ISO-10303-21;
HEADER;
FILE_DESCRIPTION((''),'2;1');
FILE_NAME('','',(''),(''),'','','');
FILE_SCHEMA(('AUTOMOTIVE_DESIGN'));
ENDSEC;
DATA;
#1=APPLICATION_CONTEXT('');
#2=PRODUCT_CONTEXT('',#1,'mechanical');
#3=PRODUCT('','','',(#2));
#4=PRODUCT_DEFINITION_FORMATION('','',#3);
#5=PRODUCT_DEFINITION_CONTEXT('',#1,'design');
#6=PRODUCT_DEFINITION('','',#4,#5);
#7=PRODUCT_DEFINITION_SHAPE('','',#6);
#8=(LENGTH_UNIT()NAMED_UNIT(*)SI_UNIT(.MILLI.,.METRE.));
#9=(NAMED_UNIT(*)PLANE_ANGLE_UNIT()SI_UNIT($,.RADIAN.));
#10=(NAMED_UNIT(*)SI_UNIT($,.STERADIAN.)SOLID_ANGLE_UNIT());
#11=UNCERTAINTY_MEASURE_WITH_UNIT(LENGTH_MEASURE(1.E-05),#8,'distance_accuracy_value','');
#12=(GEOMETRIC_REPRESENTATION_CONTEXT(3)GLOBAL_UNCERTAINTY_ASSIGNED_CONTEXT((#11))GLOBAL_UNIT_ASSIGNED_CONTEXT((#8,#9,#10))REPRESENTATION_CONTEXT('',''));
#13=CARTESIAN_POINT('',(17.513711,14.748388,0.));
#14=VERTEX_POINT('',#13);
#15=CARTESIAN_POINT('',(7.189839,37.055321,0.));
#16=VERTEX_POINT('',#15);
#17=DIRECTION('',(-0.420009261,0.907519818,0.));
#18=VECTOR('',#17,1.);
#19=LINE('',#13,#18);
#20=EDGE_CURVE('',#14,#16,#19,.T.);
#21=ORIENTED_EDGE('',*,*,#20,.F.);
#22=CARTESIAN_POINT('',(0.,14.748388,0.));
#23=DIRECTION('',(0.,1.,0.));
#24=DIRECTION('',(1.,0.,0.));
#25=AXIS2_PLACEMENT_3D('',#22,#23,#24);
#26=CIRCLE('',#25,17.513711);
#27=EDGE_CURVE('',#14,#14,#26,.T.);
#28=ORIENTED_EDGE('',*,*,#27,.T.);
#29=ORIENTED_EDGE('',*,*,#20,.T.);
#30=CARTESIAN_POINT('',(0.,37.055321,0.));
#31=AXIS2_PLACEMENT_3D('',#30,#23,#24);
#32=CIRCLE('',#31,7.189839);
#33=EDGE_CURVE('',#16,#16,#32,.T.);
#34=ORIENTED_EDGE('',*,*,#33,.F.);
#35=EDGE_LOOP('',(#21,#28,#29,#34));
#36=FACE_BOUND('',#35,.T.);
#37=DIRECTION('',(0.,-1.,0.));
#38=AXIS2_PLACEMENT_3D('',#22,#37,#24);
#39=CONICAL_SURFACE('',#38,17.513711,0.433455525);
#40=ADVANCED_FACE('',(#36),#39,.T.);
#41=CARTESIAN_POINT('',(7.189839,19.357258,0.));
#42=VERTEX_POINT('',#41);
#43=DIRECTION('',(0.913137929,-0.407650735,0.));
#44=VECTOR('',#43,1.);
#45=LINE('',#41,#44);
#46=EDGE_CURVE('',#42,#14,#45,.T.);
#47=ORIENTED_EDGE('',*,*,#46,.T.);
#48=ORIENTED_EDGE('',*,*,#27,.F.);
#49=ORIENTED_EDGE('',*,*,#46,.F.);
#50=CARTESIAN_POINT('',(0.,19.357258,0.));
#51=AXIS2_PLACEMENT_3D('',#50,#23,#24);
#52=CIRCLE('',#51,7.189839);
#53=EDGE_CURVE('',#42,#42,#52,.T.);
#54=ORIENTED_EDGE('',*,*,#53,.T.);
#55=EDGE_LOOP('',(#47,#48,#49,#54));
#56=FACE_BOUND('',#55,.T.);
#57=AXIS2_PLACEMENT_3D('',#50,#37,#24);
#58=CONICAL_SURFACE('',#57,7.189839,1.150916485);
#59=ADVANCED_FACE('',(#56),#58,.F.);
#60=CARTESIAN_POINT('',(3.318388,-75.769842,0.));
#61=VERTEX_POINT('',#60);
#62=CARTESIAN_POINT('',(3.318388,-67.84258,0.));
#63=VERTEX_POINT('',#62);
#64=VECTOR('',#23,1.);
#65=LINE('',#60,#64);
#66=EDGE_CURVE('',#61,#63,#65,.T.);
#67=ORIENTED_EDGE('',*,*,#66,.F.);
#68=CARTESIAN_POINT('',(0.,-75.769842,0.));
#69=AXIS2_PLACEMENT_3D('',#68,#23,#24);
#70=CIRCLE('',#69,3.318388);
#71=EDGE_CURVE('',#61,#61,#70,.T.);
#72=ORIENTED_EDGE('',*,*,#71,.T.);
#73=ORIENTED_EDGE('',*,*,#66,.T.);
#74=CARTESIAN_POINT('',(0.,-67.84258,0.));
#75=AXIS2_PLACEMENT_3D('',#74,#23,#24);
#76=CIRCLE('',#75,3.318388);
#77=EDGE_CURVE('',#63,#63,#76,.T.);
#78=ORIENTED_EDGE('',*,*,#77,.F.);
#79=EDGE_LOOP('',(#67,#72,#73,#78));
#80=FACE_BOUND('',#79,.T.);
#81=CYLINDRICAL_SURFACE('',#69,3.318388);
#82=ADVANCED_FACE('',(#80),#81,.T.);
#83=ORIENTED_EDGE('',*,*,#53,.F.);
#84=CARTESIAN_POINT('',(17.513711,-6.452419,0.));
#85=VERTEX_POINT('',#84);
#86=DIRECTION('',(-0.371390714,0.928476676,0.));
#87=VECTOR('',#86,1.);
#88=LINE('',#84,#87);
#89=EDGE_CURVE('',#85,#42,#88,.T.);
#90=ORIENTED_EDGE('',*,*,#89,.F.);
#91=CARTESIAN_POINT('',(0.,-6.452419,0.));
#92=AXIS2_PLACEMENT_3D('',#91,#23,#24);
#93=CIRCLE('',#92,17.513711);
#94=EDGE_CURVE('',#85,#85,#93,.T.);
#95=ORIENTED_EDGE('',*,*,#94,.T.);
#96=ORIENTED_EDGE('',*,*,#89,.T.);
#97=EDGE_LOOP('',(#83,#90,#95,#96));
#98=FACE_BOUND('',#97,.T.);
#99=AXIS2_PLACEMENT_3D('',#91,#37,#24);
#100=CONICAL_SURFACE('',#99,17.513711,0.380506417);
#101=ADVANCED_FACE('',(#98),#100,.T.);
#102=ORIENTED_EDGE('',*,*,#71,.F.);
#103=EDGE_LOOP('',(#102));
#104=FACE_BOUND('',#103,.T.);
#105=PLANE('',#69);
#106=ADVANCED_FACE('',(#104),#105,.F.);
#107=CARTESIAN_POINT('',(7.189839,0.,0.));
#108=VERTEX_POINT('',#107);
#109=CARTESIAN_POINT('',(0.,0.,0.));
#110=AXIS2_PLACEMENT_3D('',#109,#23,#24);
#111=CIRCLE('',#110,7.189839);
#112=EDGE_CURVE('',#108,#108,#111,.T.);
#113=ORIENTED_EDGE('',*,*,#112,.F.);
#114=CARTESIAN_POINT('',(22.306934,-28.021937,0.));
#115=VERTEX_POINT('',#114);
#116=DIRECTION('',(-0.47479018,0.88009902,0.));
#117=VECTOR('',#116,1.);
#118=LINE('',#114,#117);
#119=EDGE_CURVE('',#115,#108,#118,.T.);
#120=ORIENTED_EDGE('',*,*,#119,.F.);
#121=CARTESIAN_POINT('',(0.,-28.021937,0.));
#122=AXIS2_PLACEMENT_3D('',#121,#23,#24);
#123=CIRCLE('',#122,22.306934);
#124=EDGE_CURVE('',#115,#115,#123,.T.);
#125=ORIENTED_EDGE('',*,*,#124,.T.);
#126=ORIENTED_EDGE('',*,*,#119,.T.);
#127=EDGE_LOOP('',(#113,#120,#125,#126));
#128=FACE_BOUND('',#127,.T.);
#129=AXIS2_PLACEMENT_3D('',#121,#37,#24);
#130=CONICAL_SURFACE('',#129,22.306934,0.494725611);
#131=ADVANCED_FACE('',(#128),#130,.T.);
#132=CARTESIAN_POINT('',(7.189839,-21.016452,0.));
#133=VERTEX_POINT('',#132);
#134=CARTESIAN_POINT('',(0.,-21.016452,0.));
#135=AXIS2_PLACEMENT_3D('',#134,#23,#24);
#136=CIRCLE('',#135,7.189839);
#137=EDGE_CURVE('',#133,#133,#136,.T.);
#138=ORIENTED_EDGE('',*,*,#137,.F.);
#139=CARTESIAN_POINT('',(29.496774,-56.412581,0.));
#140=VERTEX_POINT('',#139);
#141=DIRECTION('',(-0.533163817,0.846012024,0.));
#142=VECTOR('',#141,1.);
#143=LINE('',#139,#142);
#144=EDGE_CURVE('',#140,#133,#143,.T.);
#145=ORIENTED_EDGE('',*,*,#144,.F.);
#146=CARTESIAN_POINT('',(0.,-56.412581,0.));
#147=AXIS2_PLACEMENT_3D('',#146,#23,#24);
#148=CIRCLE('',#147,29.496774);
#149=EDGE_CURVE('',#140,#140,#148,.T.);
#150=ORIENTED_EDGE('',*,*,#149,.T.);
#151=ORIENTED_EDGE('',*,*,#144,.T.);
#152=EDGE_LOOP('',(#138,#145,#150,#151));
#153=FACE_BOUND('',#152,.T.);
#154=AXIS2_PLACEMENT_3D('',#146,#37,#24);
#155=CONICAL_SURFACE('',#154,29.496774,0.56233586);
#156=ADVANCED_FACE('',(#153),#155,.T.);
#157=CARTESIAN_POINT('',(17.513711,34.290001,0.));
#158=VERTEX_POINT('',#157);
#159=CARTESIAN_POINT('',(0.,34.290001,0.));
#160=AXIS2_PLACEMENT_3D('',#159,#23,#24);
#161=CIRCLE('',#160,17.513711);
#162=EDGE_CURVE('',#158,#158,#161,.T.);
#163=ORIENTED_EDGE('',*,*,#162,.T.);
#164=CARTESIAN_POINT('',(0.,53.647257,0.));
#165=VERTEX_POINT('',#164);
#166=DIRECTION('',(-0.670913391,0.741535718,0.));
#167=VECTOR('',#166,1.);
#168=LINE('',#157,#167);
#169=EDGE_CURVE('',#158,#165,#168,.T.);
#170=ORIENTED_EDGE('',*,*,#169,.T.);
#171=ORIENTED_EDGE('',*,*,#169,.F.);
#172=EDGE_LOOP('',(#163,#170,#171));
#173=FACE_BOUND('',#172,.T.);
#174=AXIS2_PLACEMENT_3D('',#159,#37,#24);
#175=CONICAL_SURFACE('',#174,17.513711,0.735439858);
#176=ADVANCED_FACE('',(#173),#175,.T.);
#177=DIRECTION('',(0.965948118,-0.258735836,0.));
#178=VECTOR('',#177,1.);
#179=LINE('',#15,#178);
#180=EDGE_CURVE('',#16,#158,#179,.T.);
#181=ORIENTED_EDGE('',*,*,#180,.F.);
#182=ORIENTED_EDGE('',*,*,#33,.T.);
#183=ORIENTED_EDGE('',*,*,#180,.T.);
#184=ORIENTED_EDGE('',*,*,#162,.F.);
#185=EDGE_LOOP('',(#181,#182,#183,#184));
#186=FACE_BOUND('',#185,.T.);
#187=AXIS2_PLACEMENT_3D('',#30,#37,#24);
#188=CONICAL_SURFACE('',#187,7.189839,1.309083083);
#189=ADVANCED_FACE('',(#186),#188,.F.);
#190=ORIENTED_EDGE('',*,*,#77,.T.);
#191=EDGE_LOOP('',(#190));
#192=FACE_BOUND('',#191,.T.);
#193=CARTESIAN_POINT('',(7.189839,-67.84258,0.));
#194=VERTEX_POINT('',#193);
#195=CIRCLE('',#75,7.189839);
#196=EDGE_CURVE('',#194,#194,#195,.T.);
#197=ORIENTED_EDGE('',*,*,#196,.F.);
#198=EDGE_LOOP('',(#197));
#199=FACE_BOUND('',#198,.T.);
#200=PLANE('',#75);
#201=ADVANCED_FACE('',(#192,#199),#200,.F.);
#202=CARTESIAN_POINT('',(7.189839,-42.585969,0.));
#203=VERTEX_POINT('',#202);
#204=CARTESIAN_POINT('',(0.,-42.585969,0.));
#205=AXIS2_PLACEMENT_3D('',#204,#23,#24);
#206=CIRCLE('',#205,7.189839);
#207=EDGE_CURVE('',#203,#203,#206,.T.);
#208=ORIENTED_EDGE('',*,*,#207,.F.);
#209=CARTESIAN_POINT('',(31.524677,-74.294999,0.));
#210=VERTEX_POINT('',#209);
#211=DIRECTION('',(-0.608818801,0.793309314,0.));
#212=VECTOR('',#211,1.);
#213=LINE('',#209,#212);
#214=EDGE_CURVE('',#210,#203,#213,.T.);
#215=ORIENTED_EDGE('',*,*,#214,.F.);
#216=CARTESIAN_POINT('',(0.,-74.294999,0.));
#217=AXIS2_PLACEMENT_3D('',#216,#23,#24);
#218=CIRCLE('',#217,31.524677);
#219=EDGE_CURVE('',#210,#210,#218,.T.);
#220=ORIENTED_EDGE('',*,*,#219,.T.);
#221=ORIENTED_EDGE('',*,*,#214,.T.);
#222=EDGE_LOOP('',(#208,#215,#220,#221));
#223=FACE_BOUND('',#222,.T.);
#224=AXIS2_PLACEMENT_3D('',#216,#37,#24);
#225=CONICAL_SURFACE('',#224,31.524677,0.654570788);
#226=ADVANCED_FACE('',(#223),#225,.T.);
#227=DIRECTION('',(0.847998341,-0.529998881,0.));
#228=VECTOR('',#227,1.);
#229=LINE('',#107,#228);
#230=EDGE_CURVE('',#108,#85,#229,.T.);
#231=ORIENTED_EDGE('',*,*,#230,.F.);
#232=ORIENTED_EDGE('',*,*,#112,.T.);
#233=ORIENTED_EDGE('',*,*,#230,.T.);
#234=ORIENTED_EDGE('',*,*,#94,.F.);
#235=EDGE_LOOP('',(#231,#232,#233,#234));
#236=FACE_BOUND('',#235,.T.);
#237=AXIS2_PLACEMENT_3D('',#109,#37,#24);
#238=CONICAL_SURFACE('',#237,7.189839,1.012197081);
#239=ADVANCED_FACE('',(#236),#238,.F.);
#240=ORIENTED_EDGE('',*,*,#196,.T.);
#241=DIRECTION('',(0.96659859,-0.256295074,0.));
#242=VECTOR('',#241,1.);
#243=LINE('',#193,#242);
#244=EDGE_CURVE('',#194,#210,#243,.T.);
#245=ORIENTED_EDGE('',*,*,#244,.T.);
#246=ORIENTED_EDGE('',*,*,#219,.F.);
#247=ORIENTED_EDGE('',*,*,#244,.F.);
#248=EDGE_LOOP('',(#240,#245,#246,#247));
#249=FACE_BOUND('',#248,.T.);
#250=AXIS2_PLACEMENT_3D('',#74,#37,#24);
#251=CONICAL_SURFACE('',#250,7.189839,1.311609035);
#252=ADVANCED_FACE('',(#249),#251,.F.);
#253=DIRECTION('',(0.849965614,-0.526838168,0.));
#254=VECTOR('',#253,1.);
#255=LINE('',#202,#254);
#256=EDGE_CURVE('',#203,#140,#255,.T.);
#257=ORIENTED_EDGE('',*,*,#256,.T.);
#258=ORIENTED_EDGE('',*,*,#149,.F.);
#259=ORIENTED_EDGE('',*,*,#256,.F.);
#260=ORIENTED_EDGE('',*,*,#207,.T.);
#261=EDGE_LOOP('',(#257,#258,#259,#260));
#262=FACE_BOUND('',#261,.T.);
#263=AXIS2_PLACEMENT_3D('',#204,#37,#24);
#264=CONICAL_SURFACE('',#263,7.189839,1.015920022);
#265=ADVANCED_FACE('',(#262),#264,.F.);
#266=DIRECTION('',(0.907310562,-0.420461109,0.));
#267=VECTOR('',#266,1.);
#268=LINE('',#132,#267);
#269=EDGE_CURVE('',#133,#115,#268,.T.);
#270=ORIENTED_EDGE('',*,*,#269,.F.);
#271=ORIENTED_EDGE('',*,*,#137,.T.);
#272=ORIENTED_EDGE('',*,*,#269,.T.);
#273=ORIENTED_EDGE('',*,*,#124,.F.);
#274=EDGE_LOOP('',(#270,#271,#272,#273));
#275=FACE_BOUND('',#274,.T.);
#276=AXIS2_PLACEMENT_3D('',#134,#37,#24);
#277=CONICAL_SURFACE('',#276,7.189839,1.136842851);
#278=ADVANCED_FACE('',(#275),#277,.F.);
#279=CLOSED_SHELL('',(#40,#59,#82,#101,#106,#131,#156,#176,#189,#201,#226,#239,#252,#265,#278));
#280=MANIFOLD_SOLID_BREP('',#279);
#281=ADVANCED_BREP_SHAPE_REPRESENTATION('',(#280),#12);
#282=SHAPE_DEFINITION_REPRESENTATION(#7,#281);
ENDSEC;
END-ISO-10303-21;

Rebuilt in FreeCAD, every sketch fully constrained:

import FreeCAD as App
import Part
import Sketcher
from FreeCAD import Vector

doc = App.newDocument("Part")
body = doc.addObject("PartDesign::Body", "Body")

# Sketch on XY plane
sketch1 = body.newObject("Sketcher::SketchObject", "Sketch")
sketch1.AttachmentSupport = (doc.getObject("XY_Plane"), [""])
sketch1.MapMode = "FlatFace"
sketch1.addGeometry(Part.LineSegment(Vector(17.5, 34.3, 0), Vector(0, 53.6, 0)), False)
sketch1.addGeometry(Part.LineSegment(Vector(0, 53.6, 0), Vector(0, -75.8, 0)), False)
sketch1.addGeometry(Part.LineSegment(Vector(0, -75.8, 0), Vector(3.3, -75.8, 0)), False)
sketch1.addGeometry(Part.LineSegment(Vector(3.3, -75.8, 0), Vector(3.3, -67.8, 0)), False)
sketch1.addGeometry(Part.LineSegment(Vector(3.3, -67.8, 0), Vector(7.2, -67.8, 0)), False)
sketch1.addGeometry(Part.LineSegment(Vector(7.2, -67.8, 0), Vector(31.5, -74.3, 0)), False)
sketch1.addGeometry(Part.LineSegment(Vector(31.5, -74.3, 0), Vector(7.2, -42.6, 0)), False)
sketch1.addGeometry(Part.LineSegment(Vector(7.2, -42.6, 0), Vector(29.5, -56.4, 0)), False)
sketch1.addGeometry(Part.LineSegment(Vector(29.5, -56.4, 0), Vector(7.2, -21, 0)), False)
sketch1.addGeometry(Part.LineSegment(Vector(7.2, -21, 0), Vector(22.3, -28, 0)), False)
sketch1.addGeometry(Part.LineSegment(Vector(22.3, -28, 0), Vector(7.2, 0, 0)), False)
sketch1.addGeometry(Part.LineSegment(Vector(7.2, 0, 0), Vector(17.5, -6.5, 0)), False)
sketch1.addGeometry(Part.LineSegment(Vector(17.5, -6.5, 0), Vector(7.2, 19.4, 0)), False)
sketch1.addGeometry(Part.LineSegment(Vector(7.2, 19.4, 0), Vector(17.5, 14.7, 0)), False)
sketch1.addGeometry(Part.LineSegment(Vector(17.5, 14.7, 0), Vector(7.2, 37.1, 0)), False)
sketch1.addGeometry(Part.LineSegment(Vector(7.2, 37.1, 0), Vector(17.5, 34.3, 0)), False)
sketch1.addConstraint(Sketcher.Constraint("Coincident", 0, 2, 1, 1))
sketch1.addConstraint(Sketcher.Constraint("Coincident", 1, 2, 2, 1))
sketch1.addConstraint(Sketcher.Constraint("Coincident", 2, 2, 3, 1))
sketch1.addConstraint(Sketcher.Constraint("Coincident", 3, 2, 4, 1))
sketch1.addConstraint(Sketcher.Constraint("Coincident", 4, 2, 5, 1))
sketch1.addConstraint(Sketcher.Constraint("Coincident", 5, 2, 6, 1))
sketch1.addConstraint(Sketcher.Constraint("Coincident", 6, 2, 7, 1))
sketch1.addConstraint(Sketcher.Constraint("Coincident", 7, 2, 8, 1))
sketch1.addConstraint(Sketcher.Constraint("Coincident", 8, 2, 9, 1))
sketch1.addConstraint(Sketcher.Constraint("Coincident", 9, 2, 10, 1))
sketch1.addConstraint(Sketcher.Constraint("Coincident", 10, 2, 11, 1))
sketch1.addConstraint(Sketcher.Constraint("Coincident", 11, 2, 12, 1))
sketch1.addConstraint(Sketcher.Constraint("Coincident", 12, 2, 13, 1))
sketch1.addConstraint(Sketcher.Constraint("Coincident", 13, 2, 14, 1))
sketch1.addConstraint(Sketcher.Constraint("Coincident", 14, 2, 15, 1))
sketch1.addConstraint(Sketcher.Constraint("Coincident", 15, 2, 0, 1))
sketch1.addConstraint(Sketcher.Constraint("Vertical", 1))
sketch1.addConstraint(Sketcher.Constraint("Horizontal", 2))
sketch1.addConstraint(Sketcher.Constraint("Vertical", 3))
sketch1.addConstraint(Sketcher.Constraint("Horizontal", 4))
sketch1.addConstraint(Sketcher.Constraint("PointOnObject", 0, 2, -2))
sketch1.addConstraint(Sketcher.Constraint("PointOnObject", 10, 2, -1))
sketch1.addConstraint(Sketcher.Constraint("Vertical", 4, 2, 6, 2))
sketch1.addConstraint(Sketcher.Constraint("Vertical", 6, 2, 8, 2))
sketch1.addConstraint(Sketcher.Constraint("Vertical", 8, 2, 10, 2))
sketch1.addConstraint(Sketcher.Constraint("Vertical", 10, 2, 12, 2))
sketch1.addConstraint(Sketcher.Constraint("Vertical", 11, 2, 13, 2))
sketch1.addConstraint(Sketcher.Constraint("Vertical", 12, 2, 14, 2))
sketch1.addConstraint(Sketcher.Constraint("Vertical", 13, 2, 15, 2))
sketch1.addConstraint(Sketcher.Constraint("DistanceY", -1, 1, 15, 2, 34.290001))
sketch1.addConstraint(Sketcher.Constraint("DistanceY", 4, 2, 7, 2, 11.429999))
sketch1.addConstraint(Sketcher.Constraint("DistanceY", 12, 2, 0, 2, 34.289999))
sketch1.addConstraint(Sketcher.Constraint("DistanceY", 1, 2, 1, 1, 129.417099))
sketch1.addConstraint(Sketcher.Constraint("DistanceY", 5, 2, -1, 1, 74.294999))
sketch1.addConstraint(Sketcher.Constraint("Distance", 8, 41.838801))
sketch1.addConstraint(Sketcher.Constraint("Distance", 11, 12.174401))
sketch1.addConstraint(Sketcher.Constraint("DistanceX", 2, 1, 2, 2, 3.318388))
sketch1.addConstraint(Sketcher.Constraint("DistanceX", 4, 1, 4, 2, 3.871451))
sketch1.addConstraint(Sketcher.Constraint("DistanceY", 3, 1, 3, 2, 7.927262))
sketch1.addConstraint(Sketcher.Constraint("Distance", 0, 26.10428))
sketch1.addConstraint(Sketcher.Constraint("Distance", 13, 11.305928))
sketch1.addConstraint(Sketcher.Constraint("DistanceY", 1, 2, -1, 1, 75.769842))
sketch1.addConstraint(Sketcher.Constraint("DistanceY", 6, 2, -1, 1, 42.585969))
sketch1.addConstraint(Sketcher.Constraint("DistanceY", -1, 1, 14, 2, 37.055321))
sketch1.addConstraint(Sketcher.Constraint("DistanceX", 4, 2, 5, 2, 24.334838))
sketch1.addConstraint(Sketcher.Constraint("DistanceY", 7, 2, 8, 2, 35.396129))
sketch1.addConstraint(Sketcher.Constraint("DistanceY", 6, 2, 9, 2, 14.564032))
sketch1.addConstraint(Sketcher.Constraint("DistanceX", 9, 2, 7, 2, 7.18984))
revolution = body.newObject("PartDesign::Revolution", "Revolution")
revolution.Profile = sketch1
revolution.ReferenceAxis = (sketch1, ["V_Axis"])
revolution.Angle = 360

doc.recompute()
